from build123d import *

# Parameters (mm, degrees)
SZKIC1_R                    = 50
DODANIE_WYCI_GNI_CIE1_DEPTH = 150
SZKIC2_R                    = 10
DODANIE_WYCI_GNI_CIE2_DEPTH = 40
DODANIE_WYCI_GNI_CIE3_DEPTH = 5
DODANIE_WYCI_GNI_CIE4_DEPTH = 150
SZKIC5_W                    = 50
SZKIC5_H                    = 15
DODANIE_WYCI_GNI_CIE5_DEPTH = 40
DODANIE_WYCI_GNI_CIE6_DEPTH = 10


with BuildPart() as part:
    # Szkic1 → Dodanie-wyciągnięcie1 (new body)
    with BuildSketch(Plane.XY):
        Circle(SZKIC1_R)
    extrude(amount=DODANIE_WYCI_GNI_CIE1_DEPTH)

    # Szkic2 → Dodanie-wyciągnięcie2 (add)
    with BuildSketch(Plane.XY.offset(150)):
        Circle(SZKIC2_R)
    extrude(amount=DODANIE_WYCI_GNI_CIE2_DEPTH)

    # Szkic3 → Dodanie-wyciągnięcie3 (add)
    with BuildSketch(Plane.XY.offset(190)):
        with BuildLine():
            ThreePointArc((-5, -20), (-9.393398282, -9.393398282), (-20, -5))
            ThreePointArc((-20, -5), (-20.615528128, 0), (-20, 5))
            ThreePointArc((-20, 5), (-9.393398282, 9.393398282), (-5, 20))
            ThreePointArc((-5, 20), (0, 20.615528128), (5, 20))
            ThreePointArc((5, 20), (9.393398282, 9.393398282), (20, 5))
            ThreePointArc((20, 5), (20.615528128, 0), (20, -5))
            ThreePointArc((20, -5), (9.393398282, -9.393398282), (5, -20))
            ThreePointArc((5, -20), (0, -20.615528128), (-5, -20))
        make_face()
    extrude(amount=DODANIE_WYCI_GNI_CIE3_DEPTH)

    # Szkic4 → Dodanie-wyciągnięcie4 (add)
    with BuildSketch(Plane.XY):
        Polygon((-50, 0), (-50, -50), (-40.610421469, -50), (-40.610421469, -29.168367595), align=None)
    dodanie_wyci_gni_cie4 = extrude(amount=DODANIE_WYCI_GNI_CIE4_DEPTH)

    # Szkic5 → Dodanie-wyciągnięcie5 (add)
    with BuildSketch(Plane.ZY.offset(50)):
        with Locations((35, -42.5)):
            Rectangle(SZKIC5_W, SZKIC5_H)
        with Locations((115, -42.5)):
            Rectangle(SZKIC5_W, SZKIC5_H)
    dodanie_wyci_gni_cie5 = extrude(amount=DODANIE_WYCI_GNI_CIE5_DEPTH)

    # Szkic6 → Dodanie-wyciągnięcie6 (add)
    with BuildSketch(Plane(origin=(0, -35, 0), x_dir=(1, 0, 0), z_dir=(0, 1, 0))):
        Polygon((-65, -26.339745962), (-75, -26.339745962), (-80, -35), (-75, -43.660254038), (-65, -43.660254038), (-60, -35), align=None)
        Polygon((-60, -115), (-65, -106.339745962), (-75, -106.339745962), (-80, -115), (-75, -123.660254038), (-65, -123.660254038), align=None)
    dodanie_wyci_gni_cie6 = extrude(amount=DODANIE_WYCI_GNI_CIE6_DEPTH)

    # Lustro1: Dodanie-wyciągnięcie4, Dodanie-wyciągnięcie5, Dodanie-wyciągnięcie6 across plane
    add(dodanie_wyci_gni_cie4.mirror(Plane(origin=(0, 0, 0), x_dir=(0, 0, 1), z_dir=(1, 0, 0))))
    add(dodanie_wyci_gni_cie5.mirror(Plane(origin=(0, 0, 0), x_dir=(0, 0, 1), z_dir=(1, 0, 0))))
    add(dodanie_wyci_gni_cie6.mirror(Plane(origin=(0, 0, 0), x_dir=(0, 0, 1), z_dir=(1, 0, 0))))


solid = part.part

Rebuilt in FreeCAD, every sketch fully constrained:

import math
import FreeCAD as App
import Part
import Sketcher

V = App.Vector
Q = App.Units.Quantity

doc = App.newDocument("Part")
body = doc.addObject("PartDesign::Body", "Body")

# Sketch on XY plane
sketch1 = doc.addObject("Sketcher::SketchObject", "Sketch")
body.addObject(sketch1)
sketch1.AttachmentSupport = (doc.XY_Plane, [""])
sketch1.MapMode = "FlatFace"
sketch1.addGeometry(Part.Circle(V(0, 0, 0), V(0, 0, 1), 50), False)
sketch1.addConstraint(Sketcher.Constraint("Coincident", 0, 3, -1, 1))
sketch1.addConstraint(Sketcher.Constraint("Diameter", 0, 100.0))
pad1 = doc.addObject("PartDesign::Pad", "Pad")
body.addObject(pad1)
pad1.Profile = sketch1
pad1.Length = 150

# Sketch on XY plane
sketch2 = doc.addObject("Sketcher::SketchObject", "Sketch001")
body.addObject(sketch2)
sketch2.AttachmentSupport = (doc.XY_Plane, [""])
sketch2.MapMode = "FlatFace"
sketch2.AttachmentOffset = App.Placement(V(0, 0, 150), App.Rotation())
sketch2.addGeometry(Part.Circle(V(0, 0, 0), V(0, 0, 1), 10), False)
sketch2.addConstraint(Sketcher.Constraint("Coincident", 0, 3, -1, 1))
sketch2.addConstraint(Sketcher.Constraint("Diameter", 0, 20.0))
pad2 = doc.addObject("PartDesign::Pad", "Pad001")
body.addObject(pad2)
pad2.Profile = sketch2
pad2.Length = 40

# Sketch on XY plane
sketch3 = doc.addObject("Sketcher::SketchObject", "Sketch002")
body.addObject(sketch3)
sketch3.AttachmentSupport = (doc.XY_Plane, [""])
sketch3.MapMode = "FlatFace"
sketch3.AttachmentOffset = App.Placement(V(0, 0, 190), App.Rotation())
sketch3.addGeometry(Part.ArcOfCircle(Part.Circle(V(-20, -20, 0), V(0, 0, 1), 15), math.radians(0), math.radians(90)), False)
sketch3.addGeometry(Part.ArcOfCircle(Part.Circle(V(0, 0, 0), V(0, 0, 1), 21), math.radians(-104), math.radians(-76)), False)
sketch3.addGeometry(Part.ArcOfCircle(Part.Circle(V(20, -20, 0), V(0, 0, 1), 15), math.radians(90), math.radians(180)), False)
sketch3.addGeometry(Part.ArcOfCircle(Part.Circle(V(0, 0, 0), V(0, 0, 1), 21), math.radians(-14), math.radians(14)), False)
sketch3.addGeometry(Part.ArcOfCircle(Part.Circle(V(20, 20, 0), V(0, 0, 1), 15), math.radians(180), math.radians(270)), False)
sketch3.addGeometry(Part.ArcOfCircle(Part.Circle(V(0, 0, 0), V(0, 0, 1), 21), math.radians(76), math.radians(104)), False)
sketch3.addGeometry(Part.ArcOfCircle(Part.Circle(V(-20, 20, 0), V(0, 0, 1), 15), math.radians(-90), math.radians(0)), False)
sketch3.addGeometry(Part.ArcOfCircle(Part.Circle(V(0, 0, 0), V(0, 0, 1), 21), math.radians(166), math.radians(194)), False)
sketch3.addConstraint(Sketcher.Constraint("Coincident", 0, 1, 1, 1))
sketch3.addConstraint(Sketcher.Constraint("Coincident", 1, 2, 2, 2))
sketch3.addConstraint(Sketcher.Constraint("Coincident", 2, 1, 3, 1))
sketch3.addConstraint(Sketcher.Constraint("Coincident", 3, 2, 4, 2))
sketch3.addConstraint(Sketcher.Constraint("Coincident", 4, 1, 5, 1))
sketch3.addConstraint(Sketcher.Constraint("Coincident", 5, 2, 6, 2))
sketch3.addConstraint(Sketcher.Constraint("Coincident", 6, 1, 7, 1))
sketch3.addConstraint(Sketcher.Constraint("Coincident", 7, 2, 0, 2))
sketch3.addConstraint(Sketcher.Constraint("Coincident", 1, 3, -1, 1))
sketch3.addConstraint(Sketcher.Constraint("Coincident", 3, 3, -1, 1))
sketch3.addConstraint(Sketcher.Constraint("Coincident", 5, 3, -1, 1))
sketch3.addConstraint(Sketcher.Constraint("Coincident", 7, 3, -1, 1))
sketch3.addConstraint(Sketcher.Constraint("Equal", 0, 2))
sketch3.addConstraint(Sketcher.Constraint("Equal", 1, 3))
sketch3.addConstraint(Sketcher.Constraint("Equal", 2, 4))
sketch3.addConstraint(Sketcher.Constraint("Equal", 3, 5))
sketch3.addConstraint(Sketcher.Constraint("Equal", 4, 6))
sketch3.addConstraint(Sketcher.Constraint("Equal", 5, 7))
sketch3.addConstraint(Sketcher.Constraint("Symmetric", 0, 3, 4, 3, -1, 1))
sketch3.addConstraint(Sketcher.Constraint("Symmetric", 2, 3, 6, 3, -1, 1))
sketch3.addConstraint(Sketcher.Constraint("Symmetric", 0, 3, 2, 3, -2))
sketch3.addConstraint(Sketcher.Constraint("Horizontal", 2, 3, 0, 1))
sketch3.addConstraint(Sketcher.Constraint("Vertical", 4, 3, 2, 1))
sketch3.addConstraint(Sketcher.Constraint("Radius", 0, 15.0))
sketch3.addConstraint(Sketcher.Constraint("DistanceX", 0, 3, -1, 1, 20.0))
pad3 = doc.addObject("PartDesign::Pad", "Pad002")
body.addObject(pad3)
pad3.Profile = sketch3
pad3.Length = 5

# Sketch on XY plane
sketch4 = doc.addObject("Sketcher::SketchObject", "Sketch003")
body.addObject(sketch4)
sketch4.AttachmentSupport = (doc.XY_Plane, [""])
sketch4.MapMode = "FlatFace"
sketch4.addGeometry(Part.LineSegment(V(-50, 0, 0), V(-50, -50, 0)), False)
sketch4.addGeometry(Part.LineSegment(V(-50, -50, 0), V(-41, -50, 0)), False)
sketch4.addGeometry(Part.LineSegment(V(-41, -50, 0), V(-41, -29, 0)), False)
sketch4.addGeometry(Part.LineSegment(V(-41, -29, 0), V(-50, 0, 0)), False)
sketch4.addConstraint(Sketcher.Constraint("Coincident", 0, 2, 1, 1))
sketch4.addConstraint(Sketcher.Constraint("Coincident", 1, 2, 2, 1))
sketch4.addConstraint(Sketcher.Constraint("Coincident", 2, 2, 3, 1))
sketch4.addConstraint(Sketcher.Constraint("Coincident", 3, 2, 0, 1))
sketch4.addConstraint(Sketcher.Constraint("Vertical", 0))
sketch4.addConstraint(Sketcher.Constraint("Horizontal", 1))
sketch4.addConstraint(Sketcher.Constraint("Vertical", 2))
sketch4.addConstraint(Sketcher.Constraint("PointOnObject", 3, 2, -1))
sketch4.addConstraint(Sketcher.Constraint("DistanceY", 0, 2, 0, 1, 50.0))
sketch4.addConstraint(Sketcher.Constraint("DistanceX", 0, 2, -1, 1, 50.0))
sketch4.addConstraint(Sketcher.Constraint("DistanceX", 1, 1, 1, 2, 9.389579))
sketch4.addConstraint(Sketcher.Constraint("Distance", 3, 30.642419))
pad4 = doc.addObject("PartDesign::Pad", "Pad003")
body.addObject(pad4)
pad4.Profile = sketch4
pad4.Length = 150

# Sketch on YZ plane
sketch5 = doc.addObject("Sketcher::SketchObject", "Sketch004")
body.addObject(sketch5)
sketch5.AttachmentSupport = (doc.YZ_Plane, [""])
sketch5.MapMode = "FlatFace"
sketch5.AttachmentOffset = App.Placement(V(0, 0, -50), App.Rotation())
sketch5.addGeometry(Part.LineSegment(V(-35, 10, 0), V(-50, 10, 0)), False)
sketch5.addGeometry(Part.LineSegment(V(-50, 10, 0), V(-50, 60, 0)), False)
sketch5.addGeometry(Part.LineSegment(V(-50, 60, 0), V(-35, 60, 0)), False)
sketch5.addGeometry(Part.LineSegment(V(-35, 60, 0), V(-35, 10, 0)), False)
sketch5.addGeometry(Part.LineSegment(V(-35, 90, 0), V(-50, 90, 0)), False)
sketch5.addGeometry(Part.LineSegment(V(-50, 90, 0), V(-50, 140, 0)), False)
sketch5.addGeometry(Part.LineSegment(V(-50, 140, 0), V(-35, 140, 0)), False)
sketch5.addGeometry(Part.LineSegment(V(-35, 140, 0), V(-35, 90, 0)), False)
sketch5.addConstraint(Sketcher.Constraint("Coincident", 0, 2, 1, 1))
sketch5.addConstraint(Sketcher.Constraint("Coincident", 1, 2, 2, 1))
sketch5.addConstraint(Sketcher.Constraint("Coincident", 2, 2, 3, 1))
sketch5.addConstraint(Sketcher.Constraint("Coincident", 3, 2, 0, 1))
sketch5.addConstraint(Sketcher.Constraint("Coincident", 4, 2, 5, 1))
sketch5.addConstraint(Sketcher.Constraint("Coincident", 5, 2, 6, 1))
sketch5.addConstraint(Sketcher.Constraint("Coincident", 6, 2, 7, 1))
sketch5.addConstraint(Sketcher.Constraint("Coincident", 7, 2, 4, 1))
sketch5.addConstraint(Sketcher.Constraint("Horizontal", 0))
sketch5.addConstraint(Sketcher.Constraint("Vertical", 1))
sketch5.addConstraint(Sketcher.Constraint("Horizontal", 2))
sketch5.addConstraint(Sketcher.Constraint("Vertical", 3))
sketch5.addConstraint(Sketcher.Constraint("Horizontal", 4))
sketch5.addConstraint(Sketcher.Constraint("Vertical", 5))
sketch5.addConstraint(Sketcher.Constraint("Horizontal", 6))
sketch5.addConstraint(Sketcher.Constraint("Vertical", 7))
sketch5.addConstraint(Sketcher.Constraint("Vertical", 1, 2, 4, 2))
sketch5.addConstraint(Sketcher.Constraint("Vertical", 3, 2, 6, 2))
sketch5.addConstraint(Sketcher.Constraint("Equal", 3, 5))
sketch5.addConstraint(Sketcher.Constraint("DistanceX", 0, 2, 0, 1, 15.0))
sketch5.addConstraint(Sketcher.Constraint("DistanceY", 1, 1, 1, 2, 50.0))
sketch5.addConstraint(Sketcher.Constraint("DistanceX", 0, 2, -1, 1, 50.0))
sketch5.addConstraint(Sketcher.Constraint("DistanceY", -1, 1, 0, 2, 10.0))
sketch5.addConstraint(Sketcher.Constraint("DistanceY", -1, 1, 4, 2, 90.0))
pad5 = doc.addObject("PartDesign::Pad", "Pad004")
body.addObject(pad5)
pad5.Profile = sketch5
pad5.Length = 40
pad5.Reversed = True

# Sketch on XZ plane
sketch6 = doc.addObject("Sketcher::SketchObject", "Sketch005")
body.addObject(sketch6)
sketch6.AttachmentSupport = (doc.XZ_Plane, [""])
sketch6.MapMode = "FlatFace"
sketch6.AttachmentOffset = App.Placement(V(0, 0, 35), App.Rotation())
sketch6.addGeometry(Part.LineSegment(V(-65, 26, 0), V(-75, 26, 0)), False)
sketch6.addGeometry(Part.LineSegment(V(-75, 26, 0), V(-80, 35, 0)), False)
sketch6.addGeometry(Part.LineSegment(V(-80, 35, 0), V(-75, 44, 0)), False)
sketch6.addGeometry(Part.LineSegment(V(-75, 44, 0), V(-65, 44, 0)), False)
sketch6.addGeometry(Part.LineSegment(V(-65, 44, 0), V(-60, 35, 0)), False)
sketch6.addGeometry(Part.LineSegment(V(-60, 35, 0), V(-65, 26, 0)), False)
sketch6.addGeometry(Part.LineSegment(V(-60, 115, 0), V(-65, 106, 0)), False)
sketch6.addGeometry(Part.LineSegment(V(-65, 106, 0), V(-75, 106, 0)), False)
sketch6.addGeometry(Part.LineSegment(V(-75, 106, 0), V(-80, 115, 0)), False)
sketch6.addGeometry(Part.LineSegment(V(-80, 115, 0), V(-75, 124, 0)), False)
sketch6.addGeometry(Part.LineSegment(V(-75, 124, 0), V(-65, 124, 0)), False)
sketch6.addGeometry(Part.LineSegment(V(-65, 124, 0), V(-60, 115, 0)), False)
sketch6.addConstraint(Sketcher.Constraint("Coincident", 0, 2, 1, 1))
sketch6.addConstraint(Sketcher.Constraint("Coincident", 1, 2, 2, 1))
sketch6.addConstraint(Sketcher.Constraint("Coincident", 2, 2, 3, 1))
sketch6.addConstraint(Sketcher.Constraint("Coincident", 3, 2, 4, 1))
sketch6.addConstraint(Sketcher.Constraint("Coincident", 4, 2, 5, 1))
sketch6.addConstraint(Sketcher.Constraint("Coincident", 5, 2, 0, 1))
sketch6.addConstraint(Sketcher.Constraint("Coincident", 6, 2, 7, 1))
sketch6.addConstraint(Sketcher.Constraint("Coincident", 7, 2, 8, 1))
sketch6.addConstraint(Sketcher.Constraint("Coincident", 8, 2, 9, 1))
sketch6.addConstraint(Sketcher.Constraint("Coincident", 9, 2, 10, 1))
sketch6.addConstraint(Sketcher.Constraint("Coincident", 10, 2, 11, 1))
sketch6.addConstraint(Sketcher.Constraint("Coincident", 11, 2, 6, 1))
sketch6.addConstraint(Sketcher.Constraint("Horizontal", 0))
sketch6.addConstraint(Sketcher.Constraint("Horizontal", 3))
sketch6.addConstraint(Sketcher.Constraint("Horizontal", 7))
sketch6.addConstraint(Sketcher.Constraint("Horizontal", 10))
sketch6.addConstraint(Sketcher.Constraint("Parallel", 1, 4))
sketch6.addConstraint(Sketcher.Constraint("Parallel", 2, 5))
sketch6.addConstraint(Sketcher.Constraint("Parallel", 5, 6))
sketch6.addConstraint(Sketcher.Constraint("Parallel", 4, 8))
sketch6.addConstraint(Sketcher.Constraint("Parallel", 6, 9))
sketch6.addConstraint(Sketcher.Constraint("Parallel", 8, 11))
sketch6.addConstraint(Sketcher.Constraint("Horizontal", 1, 2, 4, 2))
sketch6.addConstraint(Sketcher.Constraint("Horizontal", 8, 2, 11, 2))
sketch6.addConstraint(Sketcher.Constraint("Vertical", 0, 2, 2, 2))
sketch6.addConstraint(Sketcher.Constraint("Vertical", 3, 2, 5, 2))
sketch6.addConstraint(Sketcher.Constraint("Vertical", 5, 2, 6, 2))
sketch6.addConstraint(Sketcher.Constraint("Vertical", 2, 2, 7, 2))
sketch6.addConstraint(Sketcher.Constraint("Vertical", 1, 2, 8, 2))
sketch6.addConstraint(Sketcher.Constraint("Vertical", 7, 2, 9, 2))
sketch6.addConstraint(Sketcher.Constraint("DistanceX", 0, 2, 0, 1, 10.0))
sketch6.addConstraint(Sketcher.Constraint("Angle", 1, Q("120 deg")))
sketch6.addConstraint(Sketcher.Constraint("Distance", 1, 10.0))
sketch6.addConstraint(Sketcher.Constraint("DistanceX", 0, 2, -1, 1, 75.0))
sketch6.addConstraint(Sketcher.Constraint("DistanceY", -1, 1, 1, 2, 35.0))
sketch6.addConstraint(Sketcher.Constraint("DistanceY", -1, 1, 8, 2, 115.0))
pad6 = doc.addObject("PartDesign::Pad", "Pad005")
body.addObject(pad6)
pad6.Profile = sketch6
pad6.Length = 10
pad6.Reversed = True
doc.recompute()

mirrored = doc.addObject("PartDesign::Mirrored", "Mirrored")
body.addObject(mirrored)
mirrored.Originals = [pad4, pad5, pad6]
mirrored.MirrorPlane = (doc.YZ_Plane, [""])
body.Tip = mirrored

doc.recompute()
